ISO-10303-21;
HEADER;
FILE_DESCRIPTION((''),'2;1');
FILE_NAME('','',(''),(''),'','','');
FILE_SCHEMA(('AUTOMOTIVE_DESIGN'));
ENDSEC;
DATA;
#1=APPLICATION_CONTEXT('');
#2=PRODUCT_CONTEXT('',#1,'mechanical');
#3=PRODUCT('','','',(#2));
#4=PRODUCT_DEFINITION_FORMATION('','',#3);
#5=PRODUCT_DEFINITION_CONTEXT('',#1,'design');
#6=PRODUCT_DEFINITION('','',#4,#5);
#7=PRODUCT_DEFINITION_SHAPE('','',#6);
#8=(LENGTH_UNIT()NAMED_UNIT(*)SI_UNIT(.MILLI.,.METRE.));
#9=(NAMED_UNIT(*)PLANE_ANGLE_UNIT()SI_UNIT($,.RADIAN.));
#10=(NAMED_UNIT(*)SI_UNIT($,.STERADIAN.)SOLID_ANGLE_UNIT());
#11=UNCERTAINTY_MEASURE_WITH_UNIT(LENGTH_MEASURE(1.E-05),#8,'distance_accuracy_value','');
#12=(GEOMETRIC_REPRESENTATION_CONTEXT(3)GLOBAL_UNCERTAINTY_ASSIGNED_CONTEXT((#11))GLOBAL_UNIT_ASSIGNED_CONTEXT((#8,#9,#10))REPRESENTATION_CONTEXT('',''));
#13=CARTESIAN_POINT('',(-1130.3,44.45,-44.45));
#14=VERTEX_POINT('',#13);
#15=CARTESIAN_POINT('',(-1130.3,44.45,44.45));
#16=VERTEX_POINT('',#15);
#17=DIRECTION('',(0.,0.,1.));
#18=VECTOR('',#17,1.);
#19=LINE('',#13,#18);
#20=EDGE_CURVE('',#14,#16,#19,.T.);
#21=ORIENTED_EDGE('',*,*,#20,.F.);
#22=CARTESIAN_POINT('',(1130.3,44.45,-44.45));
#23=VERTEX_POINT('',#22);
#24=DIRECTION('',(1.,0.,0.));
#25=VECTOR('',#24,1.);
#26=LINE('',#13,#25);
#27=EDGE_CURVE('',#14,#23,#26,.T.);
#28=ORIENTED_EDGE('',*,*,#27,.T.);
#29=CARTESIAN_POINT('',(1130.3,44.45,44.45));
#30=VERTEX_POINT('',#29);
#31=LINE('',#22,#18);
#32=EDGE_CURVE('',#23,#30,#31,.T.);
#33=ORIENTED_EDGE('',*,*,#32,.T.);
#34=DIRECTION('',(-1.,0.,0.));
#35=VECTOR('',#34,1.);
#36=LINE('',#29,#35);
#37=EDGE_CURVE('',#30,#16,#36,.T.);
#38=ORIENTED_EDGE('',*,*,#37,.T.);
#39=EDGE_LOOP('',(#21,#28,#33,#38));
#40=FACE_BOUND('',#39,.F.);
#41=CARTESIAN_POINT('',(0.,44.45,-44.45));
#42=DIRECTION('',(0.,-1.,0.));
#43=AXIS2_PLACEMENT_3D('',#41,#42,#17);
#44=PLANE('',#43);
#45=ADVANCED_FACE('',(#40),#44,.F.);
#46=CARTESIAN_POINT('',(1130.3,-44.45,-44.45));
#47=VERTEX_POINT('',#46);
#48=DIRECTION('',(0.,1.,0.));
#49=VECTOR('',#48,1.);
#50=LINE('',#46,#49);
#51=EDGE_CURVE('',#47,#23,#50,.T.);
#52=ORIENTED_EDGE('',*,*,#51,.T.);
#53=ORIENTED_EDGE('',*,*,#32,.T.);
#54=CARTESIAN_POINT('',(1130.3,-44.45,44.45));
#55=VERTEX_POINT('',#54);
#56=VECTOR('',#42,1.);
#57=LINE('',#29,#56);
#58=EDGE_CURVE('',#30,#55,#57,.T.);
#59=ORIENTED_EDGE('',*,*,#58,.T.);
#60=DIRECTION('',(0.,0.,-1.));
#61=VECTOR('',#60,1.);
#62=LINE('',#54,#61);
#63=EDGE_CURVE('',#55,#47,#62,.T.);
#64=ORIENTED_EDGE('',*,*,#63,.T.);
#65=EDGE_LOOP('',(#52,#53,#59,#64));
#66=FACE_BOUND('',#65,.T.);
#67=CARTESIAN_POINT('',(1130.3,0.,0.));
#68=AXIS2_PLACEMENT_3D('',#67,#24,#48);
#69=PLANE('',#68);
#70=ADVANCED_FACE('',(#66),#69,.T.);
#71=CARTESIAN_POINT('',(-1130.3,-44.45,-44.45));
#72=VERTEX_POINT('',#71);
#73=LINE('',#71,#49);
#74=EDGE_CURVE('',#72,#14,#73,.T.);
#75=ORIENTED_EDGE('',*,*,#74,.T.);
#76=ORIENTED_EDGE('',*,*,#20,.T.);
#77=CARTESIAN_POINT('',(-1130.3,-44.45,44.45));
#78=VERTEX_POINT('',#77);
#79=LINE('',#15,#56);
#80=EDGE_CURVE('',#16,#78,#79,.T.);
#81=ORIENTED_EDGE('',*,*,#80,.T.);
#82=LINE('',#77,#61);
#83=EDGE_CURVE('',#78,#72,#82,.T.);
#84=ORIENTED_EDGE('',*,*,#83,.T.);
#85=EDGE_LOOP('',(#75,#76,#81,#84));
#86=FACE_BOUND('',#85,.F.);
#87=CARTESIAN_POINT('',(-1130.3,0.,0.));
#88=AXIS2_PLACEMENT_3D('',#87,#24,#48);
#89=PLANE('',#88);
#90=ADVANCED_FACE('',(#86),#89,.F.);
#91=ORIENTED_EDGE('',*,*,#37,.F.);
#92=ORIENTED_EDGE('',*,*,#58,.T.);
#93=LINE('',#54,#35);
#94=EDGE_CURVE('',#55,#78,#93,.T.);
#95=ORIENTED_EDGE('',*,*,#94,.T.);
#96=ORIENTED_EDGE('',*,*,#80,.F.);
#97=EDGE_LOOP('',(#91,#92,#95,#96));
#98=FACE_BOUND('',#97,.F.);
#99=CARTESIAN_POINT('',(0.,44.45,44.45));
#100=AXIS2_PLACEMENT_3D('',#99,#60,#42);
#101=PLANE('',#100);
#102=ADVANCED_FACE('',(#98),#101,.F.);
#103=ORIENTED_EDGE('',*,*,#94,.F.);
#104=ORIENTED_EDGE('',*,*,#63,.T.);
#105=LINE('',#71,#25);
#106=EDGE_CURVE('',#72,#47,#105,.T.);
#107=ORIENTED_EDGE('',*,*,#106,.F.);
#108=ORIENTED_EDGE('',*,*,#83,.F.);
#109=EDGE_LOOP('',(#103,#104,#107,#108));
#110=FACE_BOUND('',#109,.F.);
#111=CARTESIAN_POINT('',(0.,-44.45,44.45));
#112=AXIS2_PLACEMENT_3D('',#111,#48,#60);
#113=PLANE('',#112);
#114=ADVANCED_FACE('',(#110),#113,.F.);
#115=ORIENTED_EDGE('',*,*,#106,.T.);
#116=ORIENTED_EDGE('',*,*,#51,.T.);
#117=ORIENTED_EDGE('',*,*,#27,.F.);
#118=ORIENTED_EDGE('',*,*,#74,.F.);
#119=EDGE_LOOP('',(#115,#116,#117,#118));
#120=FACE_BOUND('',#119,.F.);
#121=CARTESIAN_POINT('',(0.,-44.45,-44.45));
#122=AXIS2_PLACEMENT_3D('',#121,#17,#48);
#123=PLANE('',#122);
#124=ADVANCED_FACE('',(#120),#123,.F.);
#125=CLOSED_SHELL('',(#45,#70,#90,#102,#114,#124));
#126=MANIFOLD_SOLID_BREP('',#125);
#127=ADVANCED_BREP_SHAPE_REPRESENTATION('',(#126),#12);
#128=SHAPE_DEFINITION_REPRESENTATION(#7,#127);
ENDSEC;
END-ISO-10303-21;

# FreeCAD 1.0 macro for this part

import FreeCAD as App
import Part
import Sketcher

V = App.Vector
Q = App.Units.Quantity

doc = App.newDocument("Part")
body = doc.addObject("PartDesign::Body", "Body")

# Sketch on YZ plane
sketch1 = body.newObject("Sketcher::SketchObject", "Sketch")
sketch1.AttachmentSupport = (doc.getObject("YZ_Plane"), [""])
sketch1.MapMode = "FlatFace"
sketch1.addGeometry([
    Part.LineSegment(V(-44.45, 44.45, 0), V(-44.45, -44.45, 0)),
    Part.LineSegment(V(-44.45, -44.45, 0), V(44.45, -44.45, 0)),
    Part.LineSegment(V(44.45, -44.45, 0), V(44.45, 44.45, 0)),
    Part.LineSegment(V(44.45, 44.45, 0), V(-44.45, 44.45, 0)),
], False)
sketch1.addConstraint([
    Sketcher.Constraint("Coincident", 0, 2, 1, 1),
    Sketcher.Constraint("Coincident", 1, 2, 2, 1),
    Sketcher.Constraint("Coincident", 2, 2, 3, 1),
    Sketcher.Constraint("Coincident", 3, 2, 0, 1),
    Sketcher.Constraint("Vertical", 0),
    Sketcher.Constraint("Horizontal", 1),
    Sketcher.Constraint("Vertical", 2),
    Sketcher.Constraint("Horizontal", 3),
    Sketcher.Constraint("Symmetric", 0, 2, 2, 2, -1, 1),
    Sketcher.Constraint("Equal", 3, 0),
    Sketcher.Constraint("DistanceX", 1, 1, 1, 2, Q("3.5 in")),
])
pad1 = body.newObject("PartDesign::Pad", "Pad")
pad1.Profile = sketch1
pad1.Length = Q("89 in")
pad1.Midplane = True

doc.recompute()
